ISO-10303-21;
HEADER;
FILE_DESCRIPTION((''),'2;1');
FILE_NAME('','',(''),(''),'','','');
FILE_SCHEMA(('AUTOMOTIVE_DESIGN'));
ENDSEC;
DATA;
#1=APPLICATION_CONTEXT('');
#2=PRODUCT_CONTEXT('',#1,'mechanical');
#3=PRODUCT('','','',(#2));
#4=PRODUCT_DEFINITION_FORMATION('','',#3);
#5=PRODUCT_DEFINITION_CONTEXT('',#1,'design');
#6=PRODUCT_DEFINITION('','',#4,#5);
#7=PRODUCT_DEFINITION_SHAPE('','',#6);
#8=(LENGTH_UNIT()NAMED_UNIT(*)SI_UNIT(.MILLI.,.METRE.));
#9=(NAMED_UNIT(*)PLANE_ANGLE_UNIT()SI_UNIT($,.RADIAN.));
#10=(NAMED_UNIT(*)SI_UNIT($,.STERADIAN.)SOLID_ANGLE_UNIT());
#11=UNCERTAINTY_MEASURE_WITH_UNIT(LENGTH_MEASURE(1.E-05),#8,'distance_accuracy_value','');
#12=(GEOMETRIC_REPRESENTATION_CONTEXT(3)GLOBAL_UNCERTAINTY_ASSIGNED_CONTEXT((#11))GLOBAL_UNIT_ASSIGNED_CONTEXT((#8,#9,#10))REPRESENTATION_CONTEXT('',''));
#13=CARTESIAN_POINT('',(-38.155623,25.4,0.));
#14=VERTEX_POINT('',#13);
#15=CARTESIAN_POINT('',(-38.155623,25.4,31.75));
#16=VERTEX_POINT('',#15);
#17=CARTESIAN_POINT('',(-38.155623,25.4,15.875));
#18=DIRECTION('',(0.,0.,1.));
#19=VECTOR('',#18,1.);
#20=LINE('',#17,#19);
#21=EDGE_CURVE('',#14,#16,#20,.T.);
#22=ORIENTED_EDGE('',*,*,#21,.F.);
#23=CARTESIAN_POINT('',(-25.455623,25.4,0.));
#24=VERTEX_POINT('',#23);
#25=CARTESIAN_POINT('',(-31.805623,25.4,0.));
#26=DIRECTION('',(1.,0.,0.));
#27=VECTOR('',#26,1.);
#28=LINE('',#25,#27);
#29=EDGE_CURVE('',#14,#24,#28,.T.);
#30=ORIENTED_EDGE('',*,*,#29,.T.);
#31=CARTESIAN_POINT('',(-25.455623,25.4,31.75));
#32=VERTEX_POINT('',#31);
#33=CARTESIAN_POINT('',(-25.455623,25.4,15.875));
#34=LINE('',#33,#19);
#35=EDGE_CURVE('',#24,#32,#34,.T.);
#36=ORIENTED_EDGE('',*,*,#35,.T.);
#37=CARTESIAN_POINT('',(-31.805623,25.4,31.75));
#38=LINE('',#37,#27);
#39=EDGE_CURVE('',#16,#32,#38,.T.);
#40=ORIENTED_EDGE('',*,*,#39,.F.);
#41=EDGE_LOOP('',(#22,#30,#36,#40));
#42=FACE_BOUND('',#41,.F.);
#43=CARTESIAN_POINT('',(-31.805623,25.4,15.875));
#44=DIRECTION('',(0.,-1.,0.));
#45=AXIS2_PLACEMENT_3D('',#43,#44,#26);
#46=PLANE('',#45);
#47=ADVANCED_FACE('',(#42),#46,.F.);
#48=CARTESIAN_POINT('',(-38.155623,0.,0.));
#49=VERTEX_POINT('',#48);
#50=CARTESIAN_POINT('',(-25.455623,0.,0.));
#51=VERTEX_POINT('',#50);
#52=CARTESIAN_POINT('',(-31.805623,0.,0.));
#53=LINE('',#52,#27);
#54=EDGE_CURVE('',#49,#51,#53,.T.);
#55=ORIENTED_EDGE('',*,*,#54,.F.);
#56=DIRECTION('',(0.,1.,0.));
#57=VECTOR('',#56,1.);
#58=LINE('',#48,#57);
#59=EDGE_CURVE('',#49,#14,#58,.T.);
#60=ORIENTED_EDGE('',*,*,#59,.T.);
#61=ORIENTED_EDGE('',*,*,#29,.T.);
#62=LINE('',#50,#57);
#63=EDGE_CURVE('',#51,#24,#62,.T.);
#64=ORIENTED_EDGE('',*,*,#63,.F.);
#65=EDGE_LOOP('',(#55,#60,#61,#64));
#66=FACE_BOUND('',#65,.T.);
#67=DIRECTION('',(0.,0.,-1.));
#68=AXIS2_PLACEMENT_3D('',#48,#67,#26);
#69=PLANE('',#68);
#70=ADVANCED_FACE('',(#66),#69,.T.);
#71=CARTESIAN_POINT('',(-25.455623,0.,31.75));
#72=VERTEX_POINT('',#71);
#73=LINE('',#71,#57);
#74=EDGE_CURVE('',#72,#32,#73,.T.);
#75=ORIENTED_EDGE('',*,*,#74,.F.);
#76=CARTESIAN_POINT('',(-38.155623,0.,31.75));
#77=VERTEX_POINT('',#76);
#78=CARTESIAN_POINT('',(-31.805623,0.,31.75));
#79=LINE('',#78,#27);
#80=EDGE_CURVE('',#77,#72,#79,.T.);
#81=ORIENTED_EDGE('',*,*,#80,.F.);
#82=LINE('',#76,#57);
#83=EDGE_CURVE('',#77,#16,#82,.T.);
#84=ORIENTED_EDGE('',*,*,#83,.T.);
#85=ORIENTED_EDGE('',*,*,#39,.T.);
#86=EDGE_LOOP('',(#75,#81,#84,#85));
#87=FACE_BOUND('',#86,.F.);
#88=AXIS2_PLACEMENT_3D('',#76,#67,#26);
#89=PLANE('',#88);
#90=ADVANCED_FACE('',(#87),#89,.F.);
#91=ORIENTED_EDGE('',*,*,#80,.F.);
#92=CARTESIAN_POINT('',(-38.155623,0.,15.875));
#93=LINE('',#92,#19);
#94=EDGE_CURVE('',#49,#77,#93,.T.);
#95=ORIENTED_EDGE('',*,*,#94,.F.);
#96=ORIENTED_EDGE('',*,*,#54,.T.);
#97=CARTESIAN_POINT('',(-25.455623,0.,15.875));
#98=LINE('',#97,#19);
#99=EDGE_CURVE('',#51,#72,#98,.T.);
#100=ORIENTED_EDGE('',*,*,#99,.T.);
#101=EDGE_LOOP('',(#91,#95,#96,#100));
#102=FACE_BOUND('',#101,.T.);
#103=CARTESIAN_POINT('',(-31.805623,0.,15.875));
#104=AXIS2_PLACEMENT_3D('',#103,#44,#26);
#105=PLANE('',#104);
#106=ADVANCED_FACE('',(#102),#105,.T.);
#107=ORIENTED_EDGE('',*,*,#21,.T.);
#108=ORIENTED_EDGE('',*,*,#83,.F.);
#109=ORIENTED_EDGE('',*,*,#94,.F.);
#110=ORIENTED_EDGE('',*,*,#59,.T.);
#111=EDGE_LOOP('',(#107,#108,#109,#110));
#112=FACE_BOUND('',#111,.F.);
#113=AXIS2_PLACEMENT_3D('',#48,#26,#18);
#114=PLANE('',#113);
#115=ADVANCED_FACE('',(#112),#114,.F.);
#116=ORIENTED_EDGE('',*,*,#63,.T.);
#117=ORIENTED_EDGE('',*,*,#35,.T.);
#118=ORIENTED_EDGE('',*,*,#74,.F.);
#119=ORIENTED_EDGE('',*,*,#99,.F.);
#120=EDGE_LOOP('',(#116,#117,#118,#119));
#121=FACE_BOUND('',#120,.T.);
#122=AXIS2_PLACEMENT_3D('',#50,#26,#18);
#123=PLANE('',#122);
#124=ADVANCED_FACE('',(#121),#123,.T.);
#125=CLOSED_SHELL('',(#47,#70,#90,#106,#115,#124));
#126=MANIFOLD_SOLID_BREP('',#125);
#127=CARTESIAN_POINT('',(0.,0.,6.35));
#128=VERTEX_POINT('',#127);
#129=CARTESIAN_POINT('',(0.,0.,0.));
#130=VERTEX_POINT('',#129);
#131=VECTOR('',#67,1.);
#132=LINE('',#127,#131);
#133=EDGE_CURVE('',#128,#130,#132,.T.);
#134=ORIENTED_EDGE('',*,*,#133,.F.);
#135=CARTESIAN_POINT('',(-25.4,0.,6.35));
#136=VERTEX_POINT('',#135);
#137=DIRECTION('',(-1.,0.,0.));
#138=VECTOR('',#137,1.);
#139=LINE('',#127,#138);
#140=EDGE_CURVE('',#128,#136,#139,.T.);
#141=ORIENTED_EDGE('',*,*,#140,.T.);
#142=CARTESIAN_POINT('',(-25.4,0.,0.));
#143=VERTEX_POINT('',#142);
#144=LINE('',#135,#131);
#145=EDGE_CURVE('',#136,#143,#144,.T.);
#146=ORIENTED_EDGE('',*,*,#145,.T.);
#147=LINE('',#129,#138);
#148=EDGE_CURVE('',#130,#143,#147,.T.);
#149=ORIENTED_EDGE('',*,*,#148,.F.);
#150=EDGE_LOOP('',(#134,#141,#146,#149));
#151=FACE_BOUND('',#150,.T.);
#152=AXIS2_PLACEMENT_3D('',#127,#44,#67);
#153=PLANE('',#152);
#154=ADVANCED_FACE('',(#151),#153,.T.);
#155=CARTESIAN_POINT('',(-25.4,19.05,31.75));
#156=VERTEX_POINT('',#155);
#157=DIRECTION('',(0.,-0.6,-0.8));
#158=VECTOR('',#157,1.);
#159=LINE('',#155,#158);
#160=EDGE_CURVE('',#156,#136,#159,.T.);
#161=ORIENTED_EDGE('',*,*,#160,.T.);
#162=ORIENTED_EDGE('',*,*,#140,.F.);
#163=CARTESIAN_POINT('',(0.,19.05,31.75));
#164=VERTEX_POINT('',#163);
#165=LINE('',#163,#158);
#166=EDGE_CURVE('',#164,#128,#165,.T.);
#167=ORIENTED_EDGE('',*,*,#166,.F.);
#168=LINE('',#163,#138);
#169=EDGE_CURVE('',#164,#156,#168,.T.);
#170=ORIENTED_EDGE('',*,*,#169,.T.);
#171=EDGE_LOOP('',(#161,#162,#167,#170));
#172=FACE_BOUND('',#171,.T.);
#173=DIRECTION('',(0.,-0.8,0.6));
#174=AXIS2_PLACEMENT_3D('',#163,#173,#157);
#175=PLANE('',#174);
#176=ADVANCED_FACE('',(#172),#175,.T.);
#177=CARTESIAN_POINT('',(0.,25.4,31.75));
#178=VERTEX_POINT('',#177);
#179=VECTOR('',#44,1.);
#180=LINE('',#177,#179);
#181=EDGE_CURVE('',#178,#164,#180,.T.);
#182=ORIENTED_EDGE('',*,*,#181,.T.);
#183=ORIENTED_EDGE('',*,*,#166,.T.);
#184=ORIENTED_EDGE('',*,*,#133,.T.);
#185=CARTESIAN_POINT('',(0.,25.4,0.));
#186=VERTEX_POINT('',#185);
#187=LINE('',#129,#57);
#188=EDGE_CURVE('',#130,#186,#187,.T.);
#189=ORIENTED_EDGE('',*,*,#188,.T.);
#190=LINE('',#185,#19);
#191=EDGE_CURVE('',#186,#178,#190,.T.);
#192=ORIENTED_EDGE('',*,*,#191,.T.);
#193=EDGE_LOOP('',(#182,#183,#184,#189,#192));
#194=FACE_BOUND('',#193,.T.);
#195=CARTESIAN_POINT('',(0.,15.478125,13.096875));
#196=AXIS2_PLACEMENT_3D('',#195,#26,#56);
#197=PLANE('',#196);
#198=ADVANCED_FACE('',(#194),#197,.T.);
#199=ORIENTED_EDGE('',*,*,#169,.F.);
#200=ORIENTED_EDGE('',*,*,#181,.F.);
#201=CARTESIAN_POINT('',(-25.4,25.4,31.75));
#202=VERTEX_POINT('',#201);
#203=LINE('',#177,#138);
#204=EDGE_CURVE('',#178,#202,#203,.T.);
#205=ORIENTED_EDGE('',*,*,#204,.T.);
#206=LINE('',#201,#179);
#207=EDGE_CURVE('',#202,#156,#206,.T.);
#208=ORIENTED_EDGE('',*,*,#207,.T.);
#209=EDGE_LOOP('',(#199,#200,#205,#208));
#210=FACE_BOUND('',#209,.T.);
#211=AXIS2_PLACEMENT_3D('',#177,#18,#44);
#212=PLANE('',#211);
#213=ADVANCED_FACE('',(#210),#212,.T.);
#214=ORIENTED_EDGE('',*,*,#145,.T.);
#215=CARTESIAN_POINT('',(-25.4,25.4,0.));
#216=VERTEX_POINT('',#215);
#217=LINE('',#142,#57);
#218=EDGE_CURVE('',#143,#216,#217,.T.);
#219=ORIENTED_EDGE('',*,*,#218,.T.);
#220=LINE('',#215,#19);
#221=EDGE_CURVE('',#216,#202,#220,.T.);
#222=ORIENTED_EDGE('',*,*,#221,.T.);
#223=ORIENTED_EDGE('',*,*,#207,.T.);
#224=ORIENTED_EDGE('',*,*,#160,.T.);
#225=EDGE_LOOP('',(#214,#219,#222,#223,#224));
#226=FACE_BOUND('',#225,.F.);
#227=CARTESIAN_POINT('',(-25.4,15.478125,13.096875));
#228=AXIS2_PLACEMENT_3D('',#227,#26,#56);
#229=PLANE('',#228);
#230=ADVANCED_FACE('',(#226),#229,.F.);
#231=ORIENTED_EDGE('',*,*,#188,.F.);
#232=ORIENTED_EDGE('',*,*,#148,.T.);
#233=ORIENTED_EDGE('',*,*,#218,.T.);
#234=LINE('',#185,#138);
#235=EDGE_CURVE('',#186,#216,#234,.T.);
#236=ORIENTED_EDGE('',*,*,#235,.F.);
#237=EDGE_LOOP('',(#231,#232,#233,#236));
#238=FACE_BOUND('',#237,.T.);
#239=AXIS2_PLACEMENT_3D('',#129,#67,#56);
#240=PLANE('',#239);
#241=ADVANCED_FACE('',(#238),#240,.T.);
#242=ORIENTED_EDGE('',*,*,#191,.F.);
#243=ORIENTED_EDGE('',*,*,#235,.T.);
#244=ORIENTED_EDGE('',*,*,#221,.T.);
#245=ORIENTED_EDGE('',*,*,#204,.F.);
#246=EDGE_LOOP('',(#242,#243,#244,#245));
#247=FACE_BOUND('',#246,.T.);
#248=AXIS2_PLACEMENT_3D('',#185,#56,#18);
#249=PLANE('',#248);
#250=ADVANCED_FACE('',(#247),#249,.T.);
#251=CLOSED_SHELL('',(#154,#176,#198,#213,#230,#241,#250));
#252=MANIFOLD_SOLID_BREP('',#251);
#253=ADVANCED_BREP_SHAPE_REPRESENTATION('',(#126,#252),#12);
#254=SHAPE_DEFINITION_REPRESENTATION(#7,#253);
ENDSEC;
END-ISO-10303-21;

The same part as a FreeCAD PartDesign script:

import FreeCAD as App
import Part
import Sketcher

V = App.Vector
Q = App.Units.Quantity


def add_polygon(sketch, points):
    """Adds a closed chain of lines whose ends are joined by coincident constraints."""
    first, n = sketch.GeometryCount, len(points)
    for a, b in zip(points, points[1:] + points[:1]):
        sketch.addGeometry(Part.LineSegment(App.Vector(*a, 0), App.Vector(*b, 0)), False)
    for i in range(n):
        sketch.addConstraint(Sketcher.Constraint("Coincident", first + i, 2, first + (i + 1) % n, 1))

doc = App.newDocument("Part")
body = doc.addObject("PartDesign::Body", "Body")

# Sketch on YZ plane
sketch1 = doc.addObject("Sketcher::SketchObject", "Sketch")
body.addObject(sketch1)
sketch1.AttachmentSupport = (doc.YZ_Plane, [""])
sketch1.MapMode = "FlatFace"
add_polygon(sketch1, [(0, 6), (0, 0), (25, 0), (25, 32), (19, 32)])  # lines 0-4
sketch1.addConstraint(Sketcher.Constraint("Vertical", 0))
sketch1.addConstraint(Sketcher.Constraint("Horizontal", 1))
sketch1.addConstraint(Sketcher.Constraint("Vertical", 2))
sketch1.addConstraint(Sketcher.Constraint("Horizontal", 3))
sketch1.addConstraint(Sketcher.Constraint("Coincident", 0, 2, -1, 1))
sketch1.addConstraint(Sketcher.Constraint("Equal", 3, 0))
sketch1.addConstraint(Sketcher.Constraint("DistanceX", 1, 1, 1, 2, Q("1 in")))
sketch1.addConstraint(Sketcher.Constraint("DistanceY", 4, 2, 3, 2, Q("1 in")))
sketch1.addConstraint(Sketcher.Constraint("DistanceX", 3, 2, 3, 1, Q("0.25 in")))
pad1 = doc.addObject("PartDesign::Pad", "Pad")
body.addObject(pad1)
pad1.Profile = sketch1
pad1.Length = Q("1 in")
pad1.Reversed = True
body2 = doc.addObject("PartDesign::Body", "Body001")

# Sketch on XZ plane
sketch2 = doc.addObject("Sketcher::SketchObject", "Sketch001")
body2.addObject(sketch2)
sketch2.AttachmentSupport = (doc.getObject("XZ_Plane001"), [""])
sketch2.MapMode = "FlatFace"
add_polygon(sketch2, [(-38, 32), (-38, 0), (-25, 0), (-25, 32)])  # lines 0-3
sketch2.addConstraint(Sketcher.Constraint("Vertical", 0))
sketch2.addConstraint(Sketcher.Constraint("Horizontal", 1))
sketch2.addConstraint(Sketcher.Constraint("Vertical", 2))
sketch2.addConstraint(Sketcher.Constraint("Horizontal", 3))
sketch2.addConstraint(Sketcher.Constraint("PointOnObject", 0, 2, -1))
sketch2.addConstraint(Sketcher.Constraint("DistanceX", 1, 1, 1, 2, Q("0.5 in")))
sketch2.addConstraint(Sketcher.Constraint("DistanceY", 0, 2, 0, 1, Q("1.25 in")))
sketch2.addConstraint(Sketcher.Constraint("DistanceX", 0, 2, -1, 1, 38.155623))
pad2 = doc.addObject("PartDesign::Pad", "Pad001")
body2.addObject(pad2)
pad2.Profile = sketch2
pad2.Length = Q("1 in")
pad2.Reversed = True

doc.recompute()
